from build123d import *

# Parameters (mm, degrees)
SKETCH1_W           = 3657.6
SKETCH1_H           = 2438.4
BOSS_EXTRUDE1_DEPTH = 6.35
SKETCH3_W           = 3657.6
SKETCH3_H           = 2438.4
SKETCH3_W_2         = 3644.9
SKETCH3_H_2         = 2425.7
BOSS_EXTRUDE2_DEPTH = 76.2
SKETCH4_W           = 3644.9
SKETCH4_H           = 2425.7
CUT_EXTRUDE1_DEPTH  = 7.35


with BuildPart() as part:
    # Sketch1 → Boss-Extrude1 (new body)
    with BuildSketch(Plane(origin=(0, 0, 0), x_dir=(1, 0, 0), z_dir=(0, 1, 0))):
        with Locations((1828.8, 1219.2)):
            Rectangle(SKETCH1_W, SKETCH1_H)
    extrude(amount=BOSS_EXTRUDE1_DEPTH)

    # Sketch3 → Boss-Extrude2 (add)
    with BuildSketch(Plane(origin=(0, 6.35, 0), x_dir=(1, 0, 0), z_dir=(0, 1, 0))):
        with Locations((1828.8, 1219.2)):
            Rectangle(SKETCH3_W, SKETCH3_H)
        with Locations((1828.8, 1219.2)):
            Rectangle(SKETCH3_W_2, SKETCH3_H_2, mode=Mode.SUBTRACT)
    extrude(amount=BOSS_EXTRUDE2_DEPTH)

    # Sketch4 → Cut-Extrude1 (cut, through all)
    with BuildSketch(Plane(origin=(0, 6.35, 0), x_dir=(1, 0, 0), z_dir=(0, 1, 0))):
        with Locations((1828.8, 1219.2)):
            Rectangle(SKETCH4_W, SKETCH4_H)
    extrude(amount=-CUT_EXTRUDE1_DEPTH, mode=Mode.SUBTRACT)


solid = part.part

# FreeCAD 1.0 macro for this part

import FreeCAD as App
import Part
import Sketcher

V = App.Vector
Q = App.Units.Quantity

doc = App.newDocument("Part")
body = doc.addObject("PartDesign::Body", "Body")

sketch1 = body.newObject("Sketcher::SketchObject", "Sketch")
sketch1.AttachmentSupport = (doc.getObject("XZ_Plane"), [""])
sketch1.MapMode = "FlatFace"
sketch1.addGeometry([
    Part.LineSegment(V(0, -2438, 0), V(0, 0, 0)),
    Part.LineSegment(V(0, 0, 0), V(3658, 0, 0)),
    Part.LineSegment(V(3658, 0, 0), V(3658, -2438, 0)),
    Part.LineSegment(V(3658, -2438, 0), V(0, -2438, 0)),
], False)
sketch1.addConstraint([
    Sketcher.Constraint("Coincident", 0, 2, 1, 1),
    Sketcher.Constraint("Coincident", 1, 2, 2, 1),
    Sketcher.Constraint("Coincident", 2, 2, 3, 1),
    Sketcher.Constraint("Coincident", 3, 2, 0, 1),
    Sketcher.Constraint("Vertical", 0),
    Sketcher.Constraint("Horizontal", 1),
    Sketcher.Constraint("Vertical", 2),
    Sketcher.Constraint("Horizontal", 3),
    Sketcher.Constraint("Coincident", 0, 2, -1, 1),
    Sketcher.Constraint("DistanceX", 1, 1, 1, 2, Q("144 in")),
    Sketcher.Constraint("DistanceY", 0, 1, 0, 2, Q("96 in")),
])
pad1 = body.newObject("PartDesign::Pad", "Pad")
pad1.Profile = sketch1
pad1.Length = Q("0.25 in")
pad1.Reversed = True

sketch2 = body.newObject("Sketcher::SketchObject", "Sketch001")
sketch2.AttachmentSupport = (doc.getObject("XZ_Plane"), [""])
sketch2.MapMode = "FlatFace"
sketch2.AttachmentOffset = App.Placement(V(0, 0, -0.25 * 25.4), App.Rotation())
sketch2.addGeometry([
    Part.LineSegment(V(0, -2438, 0), V(0, 0, 0)),
    Part.LineSegment(V(0, 0, 0), V(3658, 0, 0)),
    Part.LineSegment(V(3658, 0, 0), V(3658, -2438, 0)),
    Part.LineSegment(V(3658, -2438, 0), V(0, -2438, 0)),
    Part.LineSegment(V(3651, -6, 0), V(6, -6, 0)),
    Part.LineSegment(V(6, -6, 0), V(6, -2432, 0)),
    Part.LineSegment(V(6, -2432, 0), V(3651, -2432, 0)),
    Part.LineSegment(V(3651, -2432, 0), V(3651, -6, 0)),
], False)
sketch2.addConstraint([
    Sketcher.Constraint("Coincident", 0, 2, 1, 1),
    Sketcher.Constraint("Coincident", 1, 2, 2, 1),
    Sketcher.Constraint("Coincident", 2, 2, 3, 1),
    Sketcher.Constraint("Coincident", 3, 2, 0, 1),
    Sketcher.Constraint("Coincident", 4, 2, 5, 1),
    Sketcher.Constraint("Coincident", 5, 2, 6, 1),
    Sketcher.Constraint("Coincident", 6, 2, 7, 1),
    Sketcher.Constraint("Coincident", 7, 2, 4, 1),
    Sketcher.Constraint("Vertical", 0),
    Sketcher.Constraint("Horizontal", 1),
    Sketcher.Constraint("Vertical", 2),
    Sketcher.Constraint("Horizontal", 3),
    Sketcher.Constraint("Horizontal", 4),
    Sketcher.Constraint("Vertical", 5),
    Sketcher.Constraint("Horizontal", 6),
    Sketcher.Constraint("Vertical", 7),
    Sketcher.Constraint("Coincident", 0, 2, -1, 1),
    Sketcher.Constraint("DistanceX", 1, 1, 1, 2, Q("144 in")),
    Sketcher.Constraint("DistanceY", 0, 1, 0, 2, Q("96 in")),
    Sketcher.Constraint("DistanceX", 4, 2, 4, 1, Q("143.5 in")),
    Sketcher.Constraint("DistanceY", 5, 2, 5, 1, Q("95.5 in")),
    Sketcher.Constraint("DistanceX", -1, 1, 4, 2, Q("0.25 in")),
    Sketcher.Constraint("DistanceY", 4, 2, -1, 1, Q("0.25 in")),
])
pad2 = body.newObject("PartDesign::Pad", "Pad001")
pad2.Profile = sketch2
pad2.Length = Q("3 in")
pad2.Reversed = True

sketch3 = body.newObject("Sketcher::SketchObject", "Sketch002")
sketch3.AttachmentSupport = (doc.getObject("XZ_Plane"), [""])
sketch3.MapMode = "FlatFace"
sketch3.AttachmentOffset = App.Placement(V(0, 0, -0.25 * 25.4), App.Rotation())
sketch3.addGeometry([
    Part.LineSegment(V(6, -2432, 0), V(6, -6, 0)),
    Part.LineSegment(V(6, -6, 0), V(3651, -6, 0)),
    Part.LineSegment(V(3651, -6, 0), V(3651, -2432, 0)),
    Part.LineSegment(V(3651, -2432, 0), V(6, -2432, 0)),
], False)
sketch3.addConstraint([
    Sketcher.Constraint("Coincident", 0, 2, 1, 1),
    Sketcher.Constraint("Coincident", 1, 2, 2, 1),
    Sketcher.Constraint("Coincident", 2, 2, 3, 1),
    Sketcher.Constraint("Coincident", 3, 2, 0, 1),
    Sketcher.Constraint("Vertical", 0),
    Sketcher.Constraint("Horizontal", 1),
    Sketcher.Constraint("Vertical", 2),
    Sketcher.Constraint("Horizontal", 3),
    Sketcher.Constraint("DistanceX", 1, 1, 1, 2, Q("143.5 in")),
    Sketcher.Constraint("DistanceY", 0, 1, 0, 2, Q("95.5 in")),
    Sketcher.Constraint("DistanceX", -1, 1, 0, 2, Q("0.25 in")),
    Sketcher.Constraint("DistanceY", 0, 2, -1, 1, Q("0.25 in")),
])
pocket1 = body.newObject("PartDesign::Pocket", "Pocket")
pocket1.Profile = sketch3
pocket1.Type = "ThroughAll"
pocket1.Reversed = True

doc.recompute()
